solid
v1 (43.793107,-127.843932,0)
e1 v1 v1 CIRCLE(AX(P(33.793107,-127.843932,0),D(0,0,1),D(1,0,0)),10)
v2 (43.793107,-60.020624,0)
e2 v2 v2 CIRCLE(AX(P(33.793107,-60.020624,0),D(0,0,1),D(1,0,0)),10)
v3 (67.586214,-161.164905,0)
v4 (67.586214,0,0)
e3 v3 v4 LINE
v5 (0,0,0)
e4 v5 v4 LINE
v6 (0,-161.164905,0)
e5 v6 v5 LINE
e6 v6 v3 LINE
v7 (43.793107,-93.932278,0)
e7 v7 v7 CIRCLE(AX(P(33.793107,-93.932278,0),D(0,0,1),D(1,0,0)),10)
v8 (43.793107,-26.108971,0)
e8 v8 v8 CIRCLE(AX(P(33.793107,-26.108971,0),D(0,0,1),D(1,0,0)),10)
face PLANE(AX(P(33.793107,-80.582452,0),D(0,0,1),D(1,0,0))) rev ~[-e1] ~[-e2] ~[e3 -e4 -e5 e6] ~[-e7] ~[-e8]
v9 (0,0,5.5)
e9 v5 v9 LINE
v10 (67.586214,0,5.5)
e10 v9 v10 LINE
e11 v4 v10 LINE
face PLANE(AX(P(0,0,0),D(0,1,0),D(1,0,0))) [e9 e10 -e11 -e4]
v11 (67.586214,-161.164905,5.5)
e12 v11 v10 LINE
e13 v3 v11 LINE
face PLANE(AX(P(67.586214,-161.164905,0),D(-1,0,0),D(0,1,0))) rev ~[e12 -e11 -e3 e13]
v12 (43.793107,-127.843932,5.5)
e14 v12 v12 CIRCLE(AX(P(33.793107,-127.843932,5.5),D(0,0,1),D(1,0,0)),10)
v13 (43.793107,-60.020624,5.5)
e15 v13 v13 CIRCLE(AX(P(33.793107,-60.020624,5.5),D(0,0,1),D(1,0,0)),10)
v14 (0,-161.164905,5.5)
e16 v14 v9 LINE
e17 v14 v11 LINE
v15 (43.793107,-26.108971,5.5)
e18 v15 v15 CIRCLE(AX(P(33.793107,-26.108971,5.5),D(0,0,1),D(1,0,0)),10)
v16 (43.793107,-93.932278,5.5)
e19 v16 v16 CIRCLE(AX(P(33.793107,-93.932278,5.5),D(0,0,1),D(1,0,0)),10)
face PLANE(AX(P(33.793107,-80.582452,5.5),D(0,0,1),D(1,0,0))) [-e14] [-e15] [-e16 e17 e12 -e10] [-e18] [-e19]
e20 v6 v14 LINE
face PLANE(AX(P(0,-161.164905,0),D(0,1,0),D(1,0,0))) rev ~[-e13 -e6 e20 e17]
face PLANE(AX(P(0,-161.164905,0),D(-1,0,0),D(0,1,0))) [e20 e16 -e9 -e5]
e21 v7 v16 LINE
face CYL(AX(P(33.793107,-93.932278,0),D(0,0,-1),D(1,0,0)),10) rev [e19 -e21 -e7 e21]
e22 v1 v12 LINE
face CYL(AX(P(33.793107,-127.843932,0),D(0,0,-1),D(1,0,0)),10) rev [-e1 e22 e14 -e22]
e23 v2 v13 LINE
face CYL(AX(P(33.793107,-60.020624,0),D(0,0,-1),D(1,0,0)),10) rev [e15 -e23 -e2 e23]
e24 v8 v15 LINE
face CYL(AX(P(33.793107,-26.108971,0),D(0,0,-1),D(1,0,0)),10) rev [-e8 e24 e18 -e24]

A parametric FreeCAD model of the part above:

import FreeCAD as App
import Part
import Sketcher
Q = App.Units.Quantity

doc = App.newDocument("Part")
body = doc.addObject("PartDesign::Body", "Body")

sketch1 = body.newObject("Sketcher::SketchObject", "Sketch")
sketch1.AttachmentSupport = (doc.getObject("XY_Plane"), [""])
sketch1.MapMode = "FlatFace"
sketch1.addGeometry(Part.LineSegment(App.Vector(0, 0, 0), App.Vector(0, -161, 0)), False)
sketch1.addGeometry(Part.LineSegment(App.Vector(0, -161, 0), App.Vector(68, -161, 0)), False)
sketch1.addGeometry(Part.LineSegment(App.Vector(68, -161, 0), App.Vector(68, 0, 0)), False)
sketch1.addGeometry(Part.LineSegment(App.Vector(68, 0, 0), App.Vector(0, 0, 0)), False)
sketch1.addGeometry(Part.Circle(App.Vector(34, -128, 0), App.Vector(0, 0, 1), 10), False)
sketch1.addGeometry(Part.Circle(App.Vector(34, -94, 0), App.Vector(0, 0, 1), 10), False)
sketch1.addGeometry(Part.Circle(App.Vector(34, -60, 0), App.Vector(0, 0, 1), 10), False)
sketch1.addGeometry(Part.Circle(App.Vector(34, -26, 0), App.Vector(0, 0, 1), 10), False)
sketch1.addConstraint(Sketcher.Constraint("Coincident", 0, 2, 1, 1))
sketch1.addConstraint(Sketcher.Constraint("Coincident", 1, 2, 2, 1))
sketch1.addConstraint(Sketcher.Constraint("Coincident", 2, 2, 3, 1))
sketch1.addConstraint(Sketcher.Constraint("Coincident", 3, 2, 0, 1))
sketch1.addConstraint(Sketcher.Constraint("Vertical", 0))
sketch1.addConstraint(Sketcher.Constraint("Horizontal", 1))
sketch1.addConstraint(Sketcher.Constraint("Vertical", 2))
sketch1.addConstraint(Sketcher.Constraint("Horizontal", 3))
sketch1.addConstraint(Sketcher.Constraint("Coincident", 3, 2, -1, 1))
sketch1.addConstraint(Sketcher.Constraint("Equal", 4, 5))
sketch1.addConstraint(Sketcher.Constraint("Equal", 5, 6))
sketch1.addConstraint(Sketcher.Constraint("Equal", 6, 7))
sketch1.addConstraint(Sketcher.Constraint("Vertical", 4, 3, 5, 3))
sketch1.addConstraint(Sketcher.Constraint("Vertical", 5, 3, 6, 3))
sketch1.addConstraint(Sketcher.Constraint("Vertical", 6, 3, 7, 3))
sketch1.addConstraint(Sketcher.Constraint("Diameter", 4, Q("20 mm")))
sketch1.addConstraint(Sketcher.Constraint("DistanceX", 1, 1, 1, 2, Q("67.586214 mm")))
sketch1.addConstraint(Sketcher.Constraint("DistanceY", 0, 2, 0, 1, Q("161.164905 mm")))
sketch1.addConstraint(Sketcher.Constraint("DistanceY", 4, 3, -1, 1, Q("127.843932 mm")))
sketch1.addConstraint(Sketcher.Constraint("DistanceY", 7, 3, -1, 1, Q("26.108971 mm")))
sketch1.addConstraint(Sketcher.Constraint("DistanceY", 0, 2, 6, 3, Q("101.144281 mm")))
sketch1.addConstraint(Sketcher.Constraint("DistanceX", -1, 1, 4, 3, Q("33.793107 mm")))
sketch1.addConstraint(Sketcher.Constraint("DistanceY", 5, 3, -1, 1, Q("93.932278 mm")))
pad1 = body.newObject("PartDesign::Pad", "Pad")
pad1.Profile = sketch1
pad1.Length = 5.5

doc.recompute()
